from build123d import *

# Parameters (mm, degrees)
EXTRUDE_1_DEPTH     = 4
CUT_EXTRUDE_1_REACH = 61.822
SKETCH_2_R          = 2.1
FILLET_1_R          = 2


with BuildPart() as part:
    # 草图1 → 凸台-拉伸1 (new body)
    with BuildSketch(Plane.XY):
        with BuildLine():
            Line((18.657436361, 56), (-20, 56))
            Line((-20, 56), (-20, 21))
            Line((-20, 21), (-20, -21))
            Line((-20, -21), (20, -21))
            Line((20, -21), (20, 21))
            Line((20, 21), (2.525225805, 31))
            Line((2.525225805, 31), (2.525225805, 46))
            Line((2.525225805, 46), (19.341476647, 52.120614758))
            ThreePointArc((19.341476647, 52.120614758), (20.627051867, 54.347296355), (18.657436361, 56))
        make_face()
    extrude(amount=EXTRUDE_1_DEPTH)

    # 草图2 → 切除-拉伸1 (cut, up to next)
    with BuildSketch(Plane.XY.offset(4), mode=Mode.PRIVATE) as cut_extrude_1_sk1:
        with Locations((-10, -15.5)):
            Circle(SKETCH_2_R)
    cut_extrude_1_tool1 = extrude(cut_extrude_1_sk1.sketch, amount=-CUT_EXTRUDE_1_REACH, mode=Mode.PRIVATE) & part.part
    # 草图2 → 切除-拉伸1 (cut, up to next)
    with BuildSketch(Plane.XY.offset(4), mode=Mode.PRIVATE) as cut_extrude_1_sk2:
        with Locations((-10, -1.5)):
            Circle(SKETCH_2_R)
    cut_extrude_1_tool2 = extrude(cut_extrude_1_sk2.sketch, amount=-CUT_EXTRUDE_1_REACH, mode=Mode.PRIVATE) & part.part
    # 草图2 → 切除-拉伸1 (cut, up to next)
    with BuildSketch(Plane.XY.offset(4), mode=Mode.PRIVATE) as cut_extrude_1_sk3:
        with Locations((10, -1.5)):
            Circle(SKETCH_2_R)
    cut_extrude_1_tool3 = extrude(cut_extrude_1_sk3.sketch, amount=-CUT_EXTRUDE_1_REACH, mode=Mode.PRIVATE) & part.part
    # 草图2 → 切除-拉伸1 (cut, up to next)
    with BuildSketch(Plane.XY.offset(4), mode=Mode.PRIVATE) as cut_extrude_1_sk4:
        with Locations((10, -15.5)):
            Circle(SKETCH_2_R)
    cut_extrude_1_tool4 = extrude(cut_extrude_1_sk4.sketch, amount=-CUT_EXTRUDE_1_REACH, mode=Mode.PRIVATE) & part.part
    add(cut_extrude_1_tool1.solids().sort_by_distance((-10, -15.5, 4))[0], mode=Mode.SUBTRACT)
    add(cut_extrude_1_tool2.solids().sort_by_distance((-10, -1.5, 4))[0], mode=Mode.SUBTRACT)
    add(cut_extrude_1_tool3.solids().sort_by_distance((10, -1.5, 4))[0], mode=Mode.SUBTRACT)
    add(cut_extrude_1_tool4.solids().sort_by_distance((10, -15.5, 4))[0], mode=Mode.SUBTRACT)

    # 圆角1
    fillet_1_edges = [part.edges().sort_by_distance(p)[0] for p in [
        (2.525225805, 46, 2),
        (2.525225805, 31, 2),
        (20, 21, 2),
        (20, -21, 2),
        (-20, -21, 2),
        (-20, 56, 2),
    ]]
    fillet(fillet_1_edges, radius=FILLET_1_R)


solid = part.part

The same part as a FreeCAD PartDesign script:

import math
import FreeCAD as App
import Part
import Sketcher

V = App.Vector
Q = App.Units.Quantity


def edges_at(feature, points):
    """Names of the edges that pass closest to the given points."""
    edges = feature.Shape.Edges
    near = lambda p: min(range(len(edges)), key=lambda i: edges[i].distToShape(Part.Vertex(*p))[0])
    return sorted({f"Edge{near(p) + 1}" for p in points})

doc = App.newDocument("Part")
body = doc.addObject("PartDesign::Body", "Body")

sketch1 = doc.addObject("Sketcher::SketchObject", "Sketch")
body.addObject(sketch1)
sketch1.AttachmentSupport = (doc.XY_Plane, [""])
sketch1.MapMode = "FlatFace"
sketch1.addGeometry([
    Part.LineSegment(V(18.657436, 56, 0), V(-20, 56, 0)),
    Part.LineSegment(V(-20, 56, 0), V(-20, -21, 0)),
    Part.LineSegment(V(-20, -21, 0), V(20, -21, 0)),
    Part.LineSegment(V(20, -21, 0), V(20, 21, 0)),
    Part.LineSegment(V(20, 21, 0), V(2.525226, 31, 0)),
    Part.LineSegment(V(2.525226, 31, 0), V(2.525226, 46, 0)),
    Part.LineSegment(V(2.525226, 46, 0), V(19.341477, 52.120615, 0)),
    Part.ArcOfCircle(Part.Circle(V(18.657436, 54, 0), V(0, 0, 1), 2), math.radians(-70), math.radians(90)),
], False)
sketch1.addConstraint([
    Sketcher.Constraint("Coincident", 0, 2, 1, 1),
    Sketcher.Constraint("Coincident", 1, 2, 2, 1),
    Sketcher.Constraint("Coincident", 2, 2, 3, 1),
    Sketcher.Constraint("Coincident", 3, 2, 4, 1),
    Sketcher.Constraint("Coincident", 4, 2, 5, 1),
    Sketcher.Constraint("Coincident", 5, 2, 6, 1),
    Sketcher.Constraint("Tangent", 6, 2, 7, 1),
    Sketcher.Constraint("Tangent", 7, 2, 0, 1),
    Sketcher.Constraint("Horizontal", 0),
    Sketcher.Constraint("Vertical", 1),
    Sketcher.Constraint("Horizontal", 2),
    Sketcher.Constraint("Vertical", 3),
    Sketcher.Constraint("Vertical", 5),
    Sketcher.Constraint("Symmetric", 1, 2, 3, 2, -1, 1),
    Sketcher.Constraint("Radius", 7, Q("2 mm")),
    Sketcher.Constraint("DistanceX", 2, 1, 2, 2, Q("40 mm")),
    Sketcher.Constraint("DistanceY", 1, 2, 1, 1, Q("77 mm")),
    Sketcher.Constraint("DistanceY", 3, 1, 3, 2, Q("42 mm")),
    Sketcher.Constraint("DistanceY", 5, 1, 5, 2, Q("15 mm")),
    Sketcher.Constraint("Angle", 6, Q("20 deg")),
    Sketcher.Constraint("DistanceY", -1, 1, 4, 2, Q("31 mm")),
    Sketcher.Constraint("DistanceX", 0, 2, 0, 1, Q("38.657436 mm")),
])
pad1 = doc.addObject("PartDesign::Pad", "Pad")
body.addObject(pad1)
pad1.Profile = sketch1
pad1.Length = 4

sketch2 = doc.addObject("Sketcher::SketchObject", "Sketch001")
body.addObject(sketch2)
sketch2.AttachmentSupport = (doc.XY_Plane, [""])
sketch2.MapMode = "FlatFace"
sketch2.AttachmentOffset = App.Placement(V(0, 0, 4), App.Rotation())
sketch2.addGeometry(Part.Circle(V(-10, -15.5, 0), V(0, 0, 1), 2.1), False)
sketch2.addConstraint([
    Sketcher.Constraint("Diameter", 0, Q("4.2 mm")),
    Sketcher.Constraint("DistanceX", 0, 3, -1, 1, Q("10 mm")),
    Sketcher.Constraint("DistanceY", 0, 3, -1, 1, Q("15.5 mm")),
])
pocket1 = doc.addObject("PartDesign::Pocket", "Pocket")
body.addObject(pocket1)
pocket1.Profile = sketch2
pocket1.Type = "UpToFirst"

sketch3 = doc.addObject("Sketcher::SketchObject", "Sketch002")
body.addObject(sketch3)
sketch3.AttachmentSupport = (doc.XY_Plane, [""])
sketch3.MapMode = "FlatFace"
sketch3.AttachmentOffset = App.Placement(V(0, 0, 4), App.Rotation())
sketch3.addGeometry(Part.Circle(V(-10, -1.5, 0), V(0, 0, 1), 2.1), False)
sketch3.addConstraint([
    Sketcher.Constraint("Diameter", 0, Q("4.2 mm")),
    Sketcher.Constraint("DistanceX", 0, 3, -1, 1, Q("10 mm")),
    Sketcher.Constraint("DistanceY", 0, 3, -1, 1, Q("1.5 mm")),
])
pocket2 = doc.addObject("PartDesign::Pocket", "Pocket001")
body.addObject(pocket2)
pocket2.Profile = sketch3
pocket2.Type = "UpToFirst"

sketch4 = doc.addObject("Sketcher::SketchObject", "Sketch003")
body.addObject(sketch4)
sketch4.AttachmentSupport = (doc.XY_Plane, [""])
sketch4.MapMode = "FlatFace"
sketch4.AttachmentOffset = App.Placement(V(0, 0, 4), App.Rotation())
sketch4.addGeometry(Part.Circle(V(10, -1.5, 0), V(0, 0, 1), 2.1), False)
sketch4.addConstraint([
    Sketcher.Constraint("Diameter", 0, Q("4.2 mm")),
    Sketcher.Constraint("DistanceX", -1, 1, 0, 3, Q("10 mm")),
    Sketcher.Constraint("DistanceY", 0, 3, -1, 1, Q("1.5 mm")),
])
pocket3 = doc.addObject("PartDesign::Pocket", "Pocket002")
body.addObject(pocket3)
pocket3.Profile = sketch4
pocket3.Type = "UpToFirst"

sketch5 = doc.addObject("Sketcher::SketchObject", "Sketch004")
body.addObject(sketch5)
sketch5.AttachmentSupport = (doc.XY_Plane, [""])
sketch5.MapMode = "FlatFace"
sketch5.AttachmentOffset = App.Placement(V(0, 0, 4), App.Rotation())
sketch5.addGeometry(Part.Circle(V(10, -15.5, 0), V(0, 0, 1), 2.1), False)
sketch5.addConstraint([
    Sketcher.Constraint("Diameter", 0, Q("4.2 mm")),
    Sketcher.Constraint("DistanceX", -1, 1, 0, 3, Q("10 mm")),
    Sketcher.Constraint("DistanceY", 0, 3, -1, 1, Q("15.5 mm")),
])
pocket4 = doc.addObject("PartDesign::Pocket", "Pocket003")
body.addObject(pocket4)
pocket4.Profile = sketch5
pocket4.Type = "UpToFirst"
doc.recompute()

fillet = doc.addObject("PartDesign::Fillet", "Fillet")
body.addObject(fillet)
fillet.Base = (pocket4, edges_at(pocket4, [
    (2.525, 46, 2),
    (2.525, 31, 2),
    (20, 21, 2),
    (20, -21, 2),
    (-20, -21, 2),
    (-20, 56, 2),
]))
fillet.Radius = 2

doc.recompute()
